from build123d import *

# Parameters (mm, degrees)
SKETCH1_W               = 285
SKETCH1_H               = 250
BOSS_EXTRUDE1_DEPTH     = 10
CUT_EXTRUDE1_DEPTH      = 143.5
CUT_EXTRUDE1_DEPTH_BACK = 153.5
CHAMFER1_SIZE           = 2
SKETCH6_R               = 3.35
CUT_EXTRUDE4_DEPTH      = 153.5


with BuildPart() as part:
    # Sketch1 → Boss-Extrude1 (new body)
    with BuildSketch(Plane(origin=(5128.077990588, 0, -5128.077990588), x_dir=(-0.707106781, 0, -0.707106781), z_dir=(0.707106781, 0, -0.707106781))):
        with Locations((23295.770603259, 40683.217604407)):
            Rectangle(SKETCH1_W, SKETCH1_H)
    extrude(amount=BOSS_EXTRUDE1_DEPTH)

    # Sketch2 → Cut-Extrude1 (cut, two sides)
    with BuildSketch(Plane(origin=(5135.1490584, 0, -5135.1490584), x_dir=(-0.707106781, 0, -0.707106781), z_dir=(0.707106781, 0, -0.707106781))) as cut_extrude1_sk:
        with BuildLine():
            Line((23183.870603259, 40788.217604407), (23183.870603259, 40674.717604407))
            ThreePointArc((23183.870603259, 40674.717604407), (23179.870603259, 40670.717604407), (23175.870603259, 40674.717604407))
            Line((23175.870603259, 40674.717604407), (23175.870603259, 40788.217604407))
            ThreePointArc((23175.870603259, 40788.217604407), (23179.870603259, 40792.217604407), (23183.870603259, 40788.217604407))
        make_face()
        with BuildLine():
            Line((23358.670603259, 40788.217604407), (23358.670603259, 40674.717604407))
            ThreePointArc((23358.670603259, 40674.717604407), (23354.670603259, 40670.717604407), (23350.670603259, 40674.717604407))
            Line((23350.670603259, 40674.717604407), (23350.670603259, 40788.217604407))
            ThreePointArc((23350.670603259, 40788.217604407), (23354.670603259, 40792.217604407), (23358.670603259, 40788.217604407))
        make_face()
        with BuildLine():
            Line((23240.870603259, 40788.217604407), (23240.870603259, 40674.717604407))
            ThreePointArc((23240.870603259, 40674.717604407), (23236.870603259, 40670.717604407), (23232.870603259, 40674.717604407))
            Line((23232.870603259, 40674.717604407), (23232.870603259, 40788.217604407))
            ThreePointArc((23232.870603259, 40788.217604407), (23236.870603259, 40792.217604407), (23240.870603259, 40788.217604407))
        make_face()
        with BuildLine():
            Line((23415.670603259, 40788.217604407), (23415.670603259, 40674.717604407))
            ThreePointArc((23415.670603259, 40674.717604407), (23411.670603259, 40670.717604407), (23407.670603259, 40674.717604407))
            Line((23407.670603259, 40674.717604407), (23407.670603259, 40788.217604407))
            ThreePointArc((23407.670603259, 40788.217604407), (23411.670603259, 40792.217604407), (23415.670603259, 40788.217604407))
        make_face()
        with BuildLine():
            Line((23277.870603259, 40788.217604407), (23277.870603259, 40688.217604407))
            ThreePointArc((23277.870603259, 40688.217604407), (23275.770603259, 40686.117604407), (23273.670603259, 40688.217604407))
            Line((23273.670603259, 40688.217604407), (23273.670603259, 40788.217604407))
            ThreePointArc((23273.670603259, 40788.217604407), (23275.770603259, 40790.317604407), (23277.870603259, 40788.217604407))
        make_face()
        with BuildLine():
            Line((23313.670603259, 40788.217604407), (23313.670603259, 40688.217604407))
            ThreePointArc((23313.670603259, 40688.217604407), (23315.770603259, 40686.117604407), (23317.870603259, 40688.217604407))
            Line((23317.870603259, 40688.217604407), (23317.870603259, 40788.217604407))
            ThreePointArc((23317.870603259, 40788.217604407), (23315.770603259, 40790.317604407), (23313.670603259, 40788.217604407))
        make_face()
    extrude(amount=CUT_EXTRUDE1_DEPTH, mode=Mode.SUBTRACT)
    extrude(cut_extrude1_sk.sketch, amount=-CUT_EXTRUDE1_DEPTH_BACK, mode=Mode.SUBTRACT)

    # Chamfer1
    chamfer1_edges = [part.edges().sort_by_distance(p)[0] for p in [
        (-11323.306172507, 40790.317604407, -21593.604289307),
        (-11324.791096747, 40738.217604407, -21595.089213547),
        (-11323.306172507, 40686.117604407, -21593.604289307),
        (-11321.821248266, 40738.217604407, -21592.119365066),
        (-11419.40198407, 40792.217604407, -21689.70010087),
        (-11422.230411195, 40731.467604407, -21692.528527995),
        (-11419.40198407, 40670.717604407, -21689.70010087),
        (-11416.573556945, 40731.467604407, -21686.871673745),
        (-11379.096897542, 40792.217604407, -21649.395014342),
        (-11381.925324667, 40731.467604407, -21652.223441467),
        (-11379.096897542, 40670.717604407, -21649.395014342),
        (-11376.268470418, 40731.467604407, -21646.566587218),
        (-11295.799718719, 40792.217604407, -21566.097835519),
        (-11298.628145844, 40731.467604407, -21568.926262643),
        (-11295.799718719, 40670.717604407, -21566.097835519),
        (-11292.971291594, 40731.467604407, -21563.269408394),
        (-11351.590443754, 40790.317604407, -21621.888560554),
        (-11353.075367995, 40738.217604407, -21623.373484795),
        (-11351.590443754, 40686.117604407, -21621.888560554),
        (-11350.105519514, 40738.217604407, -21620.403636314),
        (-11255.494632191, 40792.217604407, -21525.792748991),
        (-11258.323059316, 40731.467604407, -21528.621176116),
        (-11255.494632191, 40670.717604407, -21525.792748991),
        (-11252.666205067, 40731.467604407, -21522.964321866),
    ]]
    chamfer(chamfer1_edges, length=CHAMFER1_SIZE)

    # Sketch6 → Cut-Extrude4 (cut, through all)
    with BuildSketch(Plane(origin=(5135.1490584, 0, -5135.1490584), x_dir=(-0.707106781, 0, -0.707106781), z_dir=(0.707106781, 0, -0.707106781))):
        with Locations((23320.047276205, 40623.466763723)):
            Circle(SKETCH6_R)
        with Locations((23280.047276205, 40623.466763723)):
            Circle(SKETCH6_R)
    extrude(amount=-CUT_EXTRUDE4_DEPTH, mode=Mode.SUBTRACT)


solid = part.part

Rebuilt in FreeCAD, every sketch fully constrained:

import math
import FreeCAD as App
import Part
import Sketcher

V = App.Vector


def edges_at(feature, points):
    """Names of the edges that pass closest to the given points."""
    edges = feature.Shape.Edges
    near = lambda p: min(range(len(edges)), key=lambda i: edges[i].distToShape(Part.Vertex(*p))[0])
    return sorted({f"Edge{near(p) + 1}" for p in points})


def add_polygon(sketch, points):
    """Adds a closed chain of lines whose ends are joined by coincident constraints."""
    first, n = sketch.GeometryCount, len(points)
    for a, b in zip(points, points[1:] + points[:1]):
        sketch.addGeometry(Part.LineSegment(App.Vector(*a, 0), App.Vector(*b, 0)), False)
    for i in range(n):
        sketch.addConstraint(Sketcher.Constraint("Coincident", first + i, 2, first + (i + 1) % n, 1))

doc = App.newDocument("Part")
body = doc.addObject("PartDesign::Body", "Body")

# Sketch on an angled plane
sketch1 = body.newObject("Sketcher::SketchObject", "Sketch")
sketch1.Placement = App.Placement(V(5128.077991, 0, -5128.077991), App.Rotation(V(-0.707106781, 0, -0.707106781), V(0, 0.999999999, 0), V(0.707106781, 0, -0.707106781), "ZXY"))
add_polygon(sketch1, [(23153, 40808), (23153, 40558), (23438, 40558), (23438, 40808)])  # lines 0-3
sketch1.addConstraint(Sketcher.Constraint("Vertical", 0))
sketch1.addConstraint(Sketcher.Constraint("Horizontal", 1))
sketch1.addConstraint(Sketcher.Constraint("Vertical", 2))
sketch1.addConstraint(Sketcher.Constraint("Horizontal", 3))
sketch1.addConstraint(Sketcher.Constraint("DistanceX", 1, 1, 1, 2, 285.0))
sketch1.addConstraint(Sketcher.Constraint("DistanceY", 0, 2, 0, 1, 250.0))
sketch1.addConstraint(Sketcher.Constraint("DistanceX", -1, 1, 0, 2, 23153.270591))
sketch1.addConstraint(Sketcher.Constraint("DistanceY", -1, 1, 0, 2, 40558.217562))
pad1 = body.newObject("PartDesign::Pad", "Pad")
pad1.Profile = sketch1
pad1.Length = 10

# Sketch on an angled plane
sketch2 = body.newObject("Sketcher::SketchObject", "Sketch001")
sketch2.Placement = App.Placement(V(5135.149058, 0, -5135.149058), App.Rotation(V(-0.707106781, 0, -0.707106781), V(0, 0.999999999, 0), V(0.707106781, 0, -0.707106781), "ZXY"))
sketch2.addGeometry(Part.LineSegment(V(23183.9, 40674.7, 0), V(23183.9, 40788.2, 0)), False)
sketch2.addGeometry(Part.ArcOfCircle(Part.Circle(V(23179.9, 40788.2, 0), V(0, 0, 1), 4), math.radians(0), math.radians(180)), False)
sketch2.addGeometry(Part.LineSegment(V(23175.9, 40788.2, 0), V(23175.9, 40674.7, 0)), False)
sketch2.addGeometry(Part.ArcOfCircle(Part.Circle(V(23179.9, 40674.7, 0), V(0, 0, 1), 4), math.radians(180), math.radians(360)), False)
sketch2.addGeometry(Part.LineSegment(V(23358.7, 40674.7, 0), V(23358.7, 40788.2, 0)), False)
sketch2.addGeometry(Part.ArcOfCircle(Part.Circle(V(23354.7, 40788.2, 0), V(0, 0, 1), 4), math.radians(0), math.radians(180)), False)
sketch2.addGeometry(Part.LineSegment(V(23350.7, 40788.2, 0), V(23350.7, 40674.7, 0)), False)
sketch2.addGeometry(Part.ArcOfCircle(Part.Circle(V(23354.7, 40674.7, 0), V(0, 0, 1), 4), math.radians(180), math.radians(360)), False)
sketch2.addGeometry(Part.LineSegment(V(23240.9, 40674.7, 0), V(23240.9, 40788.2, 0)), False)
sketch2.addGeometry(Part.ArcOfCircle(Part.Circle(V(23236.9, 40788.2, 0), V(0, 0, 1), 4), math.radians(0), math.radians(180)), False)
sketch2.addGeometry(Part.LineSegment(V(23232.9, 40788.2, 0), V(23232.9, 40674.7, 0)), False)
sketch2.addGeometry(Part.ArcOfCircle(Part.Circle(V(23236.9, 40674.7, 0), V(0, 0, 1), 4), math.radians(180), math.radians(360)), False)
sketch2.addGeometry(Part.LineSegment(V(23415.7, 40674.7, 0), V(23415.7, 40788.2, 0)), False)
sketch2.addGeometry(Part.ArcOfCircle(Part.Circle(V(23411.7, 40788.2, 0), V(0, 0, 1), 4), math.radians(0), math.radians(180)), False)
sketch2.addGeometry(Part.LineSegment(V(23407.7, 40788.2, 0), V(23407.7, 40674.7, 0)), False)
sketch2.addGeometry(Part.ArcOfCircle(Part.Circle(V(23411.7, 40674.7, 0), V(0, 0, 1), 4), math.radians(180), math.radians(360)), False)
sketch2.addGeometry(Part.LineSegment(V(23277.9, 40688.2, 0), V(23277.9, 40788.2, 0)), False)
sketch2.addGeometry(Part.ArcOfCircle(Part.Circle(V(23275.8, 40788.2, 0), V(0, 0, 1), 2.1), math.radians(0), math.radians(180)), False)
sketch2.addGeometry(Part.LineSegment(V(23273.7, 40788.2, 0), V(23273.7, 40688.2, 0)), False)
sketch2.addGeometry(Part.ArcOfCircle(Part.Circle(V(23275.8, 40688.2, 0), V(0, 0, 1), 2.1), math.radians(180), math.radians(360)), False)
sketch2.addGeometry(Part.LineSegment(V(23313.7, 40788.2, 0), V(23313.7, 40688.2, 0)), False)
sketch2.addGeometry(Part.ArcOfCircle(Part.Circle(V(23315.8, 40688.2, 0), V(0, 0, 1), 2.1), math.radians(180), math.radians(360)), False)
sketch2.addGeometry(Part.LineSegment(V(23317.9, 40688.2, 0), V(23317.9, 40788.2, 0)), False)
sketch2.addGeometry(Part.ArcOfCircle(Part.Circle(V(23315.8, 40788.2, 0), V(0, 0, 1), 2.1), math.radians(0), math.radians(180)), False)
sketch2.addConstraint(Sketcher.Constraint("Tangent", 0, 2, 1, 1))
sketch2.addConstraint(Sketcher.Constraint("Tangent", 1, 2, 2, 1))
sketch2.addConstraint(Sketcher.Constraint("Tangent", 2, 2, 3, 1))
sketch2.addConstraint(Sketcher.Constraint("Tangent", 3, 2, 0, 1))
sketch2.addConstraint(Sketcher.Constraint("Tangent", 4, 2, 5, 1))
sketch2.addConstraint(Sketcher.Constraint("Tangent", 5, 2, 6, 1))
sketch2.addConstraint(Sketcher.Constraint("Tangent", 6, 2, 7, 1))
sketch2.addConstraint(Sketcher.Constraint("Tangent", 7, 2, 4, 1))
sketch2.addConstraint(Sketcher.Constraint("Tangent", 8, 2, 9, 1))
sketch2.addConstraint(Sketcher.Constraint("Tangent", 9, 2, 10, 1))
sketch2.addConstraint(Sketcher.Constraint("Tangent", 10, 2, 11, 1))
sketch2.addConstraint(Sketcher.Constraint("Tangent", 11, 2, 8, 1))
sketch2.addConstraint(Sketcher.Constraint("Tangent", 12, 2, 13, 1))
sketch2.addConstraint(Sketcher.Constraint("Tangent", 13, 2, 14, 1))
sketch2.addConstraint(Sketcher.Constraint("Tangent", 14, 2, 15, 1))
sketch2.addConstraint(Sketcher.Constraint("Tangent", 15, 2, 12, 1))
sketch2.addConstraint(Sketcher.Constraint("Tangent", 16, 2, 17, 1))
sketch2.addConstraint(Sketcher.Constraint("Tangent", 17, 2, 18, 1))
sketch2.addConstraint(Sketcher.Constraint("Tangent", 18, 2, 19, 1))
sketch2.addConstraint(Sketcher.Constraint("Tangent", 19, 2, 16, 1))
sketch2.addConstraint(Sketcher.Constraint("Tangent", 20, 2, 21, 1))
sketch2.addConstraint(Sketcher.Constraint("Tangent", 21, 2, 22, 1))
sketch2.addConstraint(Sketcher.Constraint("Tangent", 22, 2, 23, 1))
sketch2.addConstraint(Sketcher.Constraint("Tangent", 23, 2, 20, 1))
sketch2.addConstraint(Sketcher.Constraint("Vertical", 0))
sketch2.addConstraint(Sketcher.Constraint("Vertical", 2))
sketch2.addConstraint(Sketcher.Constraint("Vertical", 4))
sketch2.addConstraint(Sketcher.Constraint("Vertical", 6))
sketch2.addConstraint(Sketcher.Constraint("Vertical", 8))
sketch2.addConstraint(Sketcher.Constraint("Vertical", 10))
sketch2.addConstraint(Sketcher.Constraint("Vertical", 12))
sketch2.addConstraint(Sketcher.Constraint("Vertical", 14))
sketch2.addConstraint(Sketcher.Constraint("Vertical", 16))
sketch2.addConstraint(Sketcher.Constraint("Vertical", 18))
sketch2.addConstraint(Sketcher.Constraint("Vertical", 20))
sketch2.addConstraint(Sketcher.Constraint("Vertical", 22))
sketch2.addConstraint(Sketcher.Constraint("Equal", 3, 5))
sketch2.addConstraint(Sketcher.Constraint("Equal", 7, 9))
sketch2.addConstraint(Sketcher.Constraint("Equal", 11, 13))
sketch2.addConstraint(Sketcher.Constraint("Equal", 19, 21))
sketch2.addConstraint(Sketcher.Constraint("Horizontal", 1, 3, 5, 3))
sketch2.addConstraint(Sketcher.Constraint("Horizontal", 3, 3, 7, 3))
sketch2.addConstraint(Sketcher.Constraint("Horizontal", 5, 3, 9, 3))
sketch2.addConstraint(Sketcher.Constraint("Horizontal", 7, 3, 11, 3))
sketch2.addConstraint(Sketcher.Constraint("Horizontal", 9, 3, 13, 3))
sketch2.addConstraint(Sketcher.Constraint("Horizontal", 11, 3, 15, 3))
sketch2.addConstraint(Sketcher.Constraint("Horizontal", 13, 3, 17, 3))
sketch2.addConstraint(Sketcher.Constraint("Horizontal", 19, 3, 21, 3))
sketch2.addConstraint(Sketcher.Constraint("Horizontal", 17, 3, 23, 3))
sketch2.addConstraint(Sketcher.Constraint("Radius", 1, 4.0))
sketch2.addConstraint(Sketcher.Constraint("Radius", 17, 2.1))
sketch2.addConstraint(Sketcher.Constraint("DistanceY", 16, 1, 16, 2, 100.0))
sketch2.addConstraint(Sketcher.Constraint("DistanceY", 0, 1, 0, 2, 113.5))
sketch2.addConstraint(Sketcher.Constraint("DistanceX", 1, 3, 9, 3, 57.0))
sketch2.addConstraint(Sketcher.Constraint("DistanceX", 5, 3, 13, 3, 57.0))
sketch2.addConstraint(Sketcher.Constraint("DistanceX", 19, 3, 21, 3, 40.0))
sketch2.addConstraint(Sketcher.Constraint("DistanceX", 8, 2, 16, 2, 37.0))
sketch2.addConstraint(Sketcher.Constraint("DistanceX", 20, 2, 6, 2, 37.0))
sketch2.addConstraint(Sketcher.Constraint("DistanceX", -1, 1, 1, 3, 23179.870591))
sketch2.addConstraint(Sketcher.Constraint("DistanceY", -1, 1, 1, 3, 40788.217561))
pocket1 = body.newObject("PartDesign::Pocket", "Pocket")
pocket1.Profile = sketch2
pocket1.Type = "ThroughAll"
pocket1.Midplane = True
doc.recompute()

chamfer = body.newObject("PartDesign::Chamfer", "Chamfer")
chamfer.Base = (pocket1, edges_at(pocket1, [
    (-11323.306, 40790.318, -21593.604),
    (-11324.791, 40738.218, -21595.089),
    (-11323.306, 40686.118, -21593.604),
    (-11321.821, 40738.218, -21592.119),
    (-11419.402, 40792.218, -21689.7),
    (-11422.23, 40731.468, -21692.529),
    (-11419.402, 40670.718, -21689.7),
    (-11416.574, 40731.468, -21686.872),
    (-11379.097, 40792.218, -21649.395),
    (-11381.925, 40731.468, -21652.223),
    (-11379.097, 40670.718, -21649.395),
    (-11376.268, 40731.468, -21646.567),
    (-11295.8, 40792.218, -21566.098),
    (-11298.628, 40731.468, -21568.926),
    (-11295.8, 40670.718, -21566.098),
    (-11292.971, 40731.468, -21563.269),
    (-11351.59, 40790.318, -21621.889),
    (-11353.075, 40738.218, -21623.373),
    (-11351.59, 40686.118, -21621.889),
    (-11350.106, 40738.218, -21620.404),
    (-11255.495, 40792.218, -21525.793),
    (-11258.323, 40731.468, -21528.621),
    (-11255.495, 40670.718, -21525.793),
    (-11252.666, 40731.468, -21522.964),
]))
chamfer.Size = 2

# Sketch on an angled plane
sketch3 = body.newObject("Sketcher::SketchObject", "Sketch002")
sketch3.Placement = App.Placement(V(5135.149058, 0, -5135.149058), App.Rotation(V(-0.707106781, 0, -0.707106781), V(0, 0.999999999, 0), V(0.707106781, 0, -0.707106781), "ZXY"))
sketch3.addGeometry(Part.Circle(V(23320.047264, 40623.466721, 0), V(0, 0, 1), 3.35), False)
sketch3.addGeometry(Part.Circle(V(23280.047264, 40623.466721, 0), V(0, 0, 1), 3.35), False)
sketch3.addConstraint(Sketcher.Constraint("Equal", 0, 1))
sketch3.addConstraint(Sketcher.Constraint("Horizontal", 0, 3, 1, 3))
sketch3.addConstraint(Sketcher.Constraint("Diameter", 0, 6.7))
sketch3.addConstraint(Sketcher.Constraint("DistanceX", 1, 3, 0, 3, 40.0))
sketch3.addConstraint(Sketcher.Constraint("DistanceY", -1, 1, 0, 3, 40623.466721))
sketch3.addConstraint(Sketcher.Constraint("DistanceX", -1, 1, 0, 3, 23320.047264))
pocket2 = body.newObject("PartDesign::Pocket", "Pocket001")
pocket2.Profile = sketch3
pocket2.Type = "ThroughAll"

doc.recompute()
